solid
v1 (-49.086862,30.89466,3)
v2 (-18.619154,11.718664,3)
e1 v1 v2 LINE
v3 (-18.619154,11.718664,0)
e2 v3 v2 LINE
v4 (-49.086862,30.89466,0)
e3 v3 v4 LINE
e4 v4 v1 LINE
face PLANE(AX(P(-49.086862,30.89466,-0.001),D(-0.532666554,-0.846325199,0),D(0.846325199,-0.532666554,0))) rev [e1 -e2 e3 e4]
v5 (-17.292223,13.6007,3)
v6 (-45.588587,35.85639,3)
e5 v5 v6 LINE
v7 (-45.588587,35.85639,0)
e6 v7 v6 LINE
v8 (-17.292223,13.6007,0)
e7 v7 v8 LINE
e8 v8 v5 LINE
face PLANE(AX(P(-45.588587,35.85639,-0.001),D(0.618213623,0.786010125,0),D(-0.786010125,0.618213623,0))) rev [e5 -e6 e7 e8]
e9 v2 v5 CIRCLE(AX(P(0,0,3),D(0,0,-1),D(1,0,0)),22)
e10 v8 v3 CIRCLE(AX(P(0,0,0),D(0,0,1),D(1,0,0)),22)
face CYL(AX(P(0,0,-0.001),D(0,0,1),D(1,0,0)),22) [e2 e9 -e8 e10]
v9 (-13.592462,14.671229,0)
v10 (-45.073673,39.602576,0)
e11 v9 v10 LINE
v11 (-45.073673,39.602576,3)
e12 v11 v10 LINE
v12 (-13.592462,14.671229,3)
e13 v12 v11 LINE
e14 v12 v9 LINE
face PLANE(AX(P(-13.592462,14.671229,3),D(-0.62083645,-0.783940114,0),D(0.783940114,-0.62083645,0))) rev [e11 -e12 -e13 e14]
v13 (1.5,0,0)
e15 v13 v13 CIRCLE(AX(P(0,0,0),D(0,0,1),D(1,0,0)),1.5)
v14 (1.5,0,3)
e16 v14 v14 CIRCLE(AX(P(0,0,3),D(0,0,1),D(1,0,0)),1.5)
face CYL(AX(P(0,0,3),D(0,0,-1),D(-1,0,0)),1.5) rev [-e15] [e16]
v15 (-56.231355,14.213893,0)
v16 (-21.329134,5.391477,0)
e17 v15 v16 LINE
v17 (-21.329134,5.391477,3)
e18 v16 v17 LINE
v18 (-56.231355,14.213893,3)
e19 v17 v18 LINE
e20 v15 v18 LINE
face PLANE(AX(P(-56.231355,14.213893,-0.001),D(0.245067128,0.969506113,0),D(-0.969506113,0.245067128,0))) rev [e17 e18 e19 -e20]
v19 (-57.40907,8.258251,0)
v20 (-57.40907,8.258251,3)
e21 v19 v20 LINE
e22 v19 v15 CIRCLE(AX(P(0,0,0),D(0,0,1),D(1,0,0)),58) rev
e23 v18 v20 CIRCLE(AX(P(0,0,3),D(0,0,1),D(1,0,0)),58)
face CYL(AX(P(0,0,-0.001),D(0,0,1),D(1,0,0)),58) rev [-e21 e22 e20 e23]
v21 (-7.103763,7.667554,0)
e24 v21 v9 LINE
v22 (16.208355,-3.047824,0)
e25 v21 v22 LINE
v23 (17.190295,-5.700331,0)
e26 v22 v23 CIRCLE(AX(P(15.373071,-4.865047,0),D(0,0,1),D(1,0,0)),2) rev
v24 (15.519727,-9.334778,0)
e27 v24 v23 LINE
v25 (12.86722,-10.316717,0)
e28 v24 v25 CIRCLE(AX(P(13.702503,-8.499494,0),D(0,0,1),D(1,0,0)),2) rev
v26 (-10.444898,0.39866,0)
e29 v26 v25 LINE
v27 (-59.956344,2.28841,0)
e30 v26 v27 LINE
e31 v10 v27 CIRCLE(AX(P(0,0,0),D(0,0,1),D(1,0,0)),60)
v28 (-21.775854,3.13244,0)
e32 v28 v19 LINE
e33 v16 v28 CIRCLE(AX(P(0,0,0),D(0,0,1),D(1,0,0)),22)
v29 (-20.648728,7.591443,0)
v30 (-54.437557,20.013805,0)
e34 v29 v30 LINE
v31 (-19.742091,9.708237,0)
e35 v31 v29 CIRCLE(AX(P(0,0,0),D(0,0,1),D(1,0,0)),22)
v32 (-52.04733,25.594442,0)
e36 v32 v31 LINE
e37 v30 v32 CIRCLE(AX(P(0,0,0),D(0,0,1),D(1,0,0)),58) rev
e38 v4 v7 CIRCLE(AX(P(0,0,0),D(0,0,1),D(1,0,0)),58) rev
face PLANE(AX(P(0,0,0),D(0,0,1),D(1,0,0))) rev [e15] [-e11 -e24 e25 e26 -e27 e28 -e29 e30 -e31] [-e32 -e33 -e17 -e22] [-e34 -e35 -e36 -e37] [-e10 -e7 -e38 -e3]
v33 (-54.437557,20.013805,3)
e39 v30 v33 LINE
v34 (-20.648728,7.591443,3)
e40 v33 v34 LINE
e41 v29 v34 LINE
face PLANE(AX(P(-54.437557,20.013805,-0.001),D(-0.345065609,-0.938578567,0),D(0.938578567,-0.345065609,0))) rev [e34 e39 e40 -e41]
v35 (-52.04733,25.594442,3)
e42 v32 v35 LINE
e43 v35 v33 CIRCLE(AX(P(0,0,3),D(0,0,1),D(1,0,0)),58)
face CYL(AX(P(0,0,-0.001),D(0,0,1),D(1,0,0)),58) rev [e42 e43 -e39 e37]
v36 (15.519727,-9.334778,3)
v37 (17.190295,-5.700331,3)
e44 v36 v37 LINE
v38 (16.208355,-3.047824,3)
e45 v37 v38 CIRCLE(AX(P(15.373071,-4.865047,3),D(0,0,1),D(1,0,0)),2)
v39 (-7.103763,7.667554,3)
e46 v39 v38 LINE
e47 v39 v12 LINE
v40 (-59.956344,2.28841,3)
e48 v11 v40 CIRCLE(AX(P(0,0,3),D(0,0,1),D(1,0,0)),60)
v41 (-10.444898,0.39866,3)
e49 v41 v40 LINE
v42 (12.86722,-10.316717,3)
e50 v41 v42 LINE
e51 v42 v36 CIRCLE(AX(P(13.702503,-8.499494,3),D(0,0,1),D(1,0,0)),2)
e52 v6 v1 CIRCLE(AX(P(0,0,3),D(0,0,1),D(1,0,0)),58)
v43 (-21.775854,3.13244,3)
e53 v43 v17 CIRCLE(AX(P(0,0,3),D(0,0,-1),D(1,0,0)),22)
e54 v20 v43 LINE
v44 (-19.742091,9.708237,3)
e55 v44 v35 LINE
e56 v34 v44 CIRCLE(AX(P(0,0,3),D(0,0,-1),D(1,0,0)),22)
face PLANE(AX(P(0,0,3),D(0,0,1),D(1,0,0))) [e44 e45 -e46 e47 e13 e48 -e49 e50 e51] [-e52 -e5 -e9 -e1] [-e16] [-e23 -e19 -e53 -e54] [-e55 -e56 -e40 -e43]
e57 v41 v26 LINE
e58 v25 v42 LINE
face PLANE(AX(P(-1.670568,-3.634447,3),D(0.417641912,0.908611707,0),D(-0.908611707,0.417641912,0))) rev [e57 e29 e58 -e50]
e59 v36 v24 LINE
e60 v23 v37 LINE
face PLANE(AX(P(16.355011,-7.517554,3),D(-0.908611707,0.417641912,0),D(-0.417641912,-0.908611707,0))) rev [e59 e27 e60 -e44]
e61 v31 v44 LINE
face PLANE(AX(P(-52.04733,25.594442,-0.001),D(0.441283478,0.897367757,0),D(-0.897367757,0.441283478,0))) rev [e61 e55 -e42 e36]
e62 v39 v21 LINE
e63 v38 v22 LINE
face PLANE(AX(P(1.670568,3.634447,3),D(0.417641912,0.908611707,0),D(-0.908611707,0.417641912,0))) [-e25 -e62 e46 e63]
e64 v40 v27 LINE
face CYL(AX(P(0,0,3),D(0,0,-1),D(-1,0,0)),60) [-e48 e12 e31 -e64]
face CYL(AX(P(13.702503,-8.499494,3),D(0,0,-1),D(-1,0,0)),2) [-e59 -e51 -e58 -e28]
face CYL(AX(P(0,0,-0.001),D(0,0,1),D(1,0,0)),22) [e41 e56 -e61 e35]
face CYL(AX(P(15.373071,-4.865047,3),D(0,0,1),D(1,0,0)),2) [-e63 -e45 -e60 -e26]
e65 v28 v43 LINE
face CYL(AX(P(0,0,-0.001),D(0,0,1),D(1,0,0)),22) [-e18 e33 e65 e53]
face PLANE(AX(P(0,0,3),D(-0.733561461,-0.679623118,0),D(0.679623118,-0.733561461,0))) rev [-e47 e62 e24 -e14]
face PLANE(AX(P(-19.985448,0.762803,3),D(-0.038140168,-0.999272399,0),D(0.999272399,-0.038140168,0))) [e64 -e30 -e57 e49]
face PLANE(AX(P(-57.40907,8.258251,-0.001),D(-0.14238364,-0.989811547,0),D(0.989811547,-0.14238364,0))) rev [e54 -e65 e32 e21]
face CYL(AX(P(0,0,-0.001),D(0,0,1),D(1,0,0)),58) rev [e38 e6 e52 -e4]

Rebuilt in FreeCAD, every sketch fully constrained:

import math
import FreeCAD as App
import Part
import Sketcher

V = App.Vector


def edges_at(feature, points):
    """Names of the edges that pass closest to the given points."""
    edges = feature.Shape.Edges
    near = lambda p: min(range(len(edges)), key=lambda i: edges[i].distToShape(Part.Vertex(*p))[0])
    return sorted({f"Edge{near(p) + 1}" for p in points})

doc = App.newDocument("Part")
body = doc.addObject("PartDesign::Body", "Body")

sketch1 = doc.addObject("Sketcher::SketchObject", "Sketch")
body.addObject(sketch1)
sketch1.AttachmentSupport = (doc.XY_Plane, [""])
sketch1.MapMode = "FlatFace"
sketch1.addGeometry([
    Part.LineSegment(V(-59.956344, 2.28841, 0), V(-19.985448, 0.762803, 0)),
    Part.ArcOfCircle(Part.Circle(V(0, 0, 0), V(0, 0, 1), 20), math.radians(132.814199), math.radians(177.814199)),
    Part.LineSegment(V(-13.592462, 14.671229, 0), V(-45.073673, 39.602576, 0)),
    Part.ArcOfCircle(Part.Circle(V(0, 0, 0), V(0, 0, 1), 60), math.radians(138.696853), math.radians(177.814199)),
], False)
sketch1.addConstraint([
    Sketcher.Constraint("Coincident", 0, 2, 1, 2),
    Sketcher.Constraint("Coincident", 1, 1, 2, 1),
    Sketcher.Constraint("Coincident", 2, 2, 3, 1),
    Sketcher.Constraint("Coincident", 3, 2, 0, 1),
    Sketcher.Constraint("Coincident", 1, 3, -1, 1),
    Sketcher.Constraint("Coincident", 3, 3, -1, 1),
    Sketcher.Constraint("Radius", 1, 20.0),
    Sketcher.Constraint("Radius", 3, 60.0),
    Sketcher.Constraint("DistanceY", -1, 1, 1, 1, 14.671229),
    Sketcher.Constraint("DistanceY", -1, 1, 3, 2, 2.28841),
    Sketcher.Constraint("DistanceX", 2, 2, 1, 1, 31.48121),
    Sketcher.Constraint("DistanceX", 0, 2, -1, 1, 19.985448),
])
pad1 = doc.addObject("PartDesign::Pad", "Pad")
body.addObject(pad1)
pad1.Profile = sketch1
pad1.Length = 3

sketch2 = doc.addObject("Sketcher::SketchObject", "Sketch001")
body.addObject(sketch2)
sketch2.AttachmentSupport = (doc.XY_Plane, [""])
sketch2.MapMode = "FlatFace"
sketch2.addGeometry([
    Part.LineSegment(V(-7.103763, 7.667554, 0), V(-13.592462, 14.671229, 0)),
    Part.ArcOfCircle(Part.Circle(V(0, 0, 0), V(0, 0, 1), 20), math.radians(132.814199), math.radians(177.814199)),
    Part.LineSegment(V(-19.985448, 0.762803, 0), V(-10.444898, 0.39866, 0)),
    Part.LineSegment(V(-10.444898, 0.39866, 0), V(14.684443, -11.152001, 0)),
    Part.LineSegment(V(14.684443, -11.152001, 0), V(18.025578, -3.883108, 0)),
    Part.LineSegment(V(18.025578, -3.883108, 0), V(-7.103763, 7.667554, 0)),
    Part.Circle(V(0, 0, 0), V(0, 0, 1), 1.5),
], False)
sketch2.addConstraint([
    Sketcher.Constraint("Coincident", 0, 2, 1, 1),
    Sketcher.Constraint("Coincident", 1, 2, 2, 1),
    Sketcher.Constraint("Coincident", 2, 2, 3, 1),
    Sketcher.Constraint("Coincident", 3, 2, 4, 1),
    Sketcher.Constraint("Coincident", 4, 2, 5, 1),
    Sketcher.Constraint("Coincident", 5, 2, 0, 1),
    Sketcher.Constraint("Coincident", 1, 3, -1, 1),
    Sketcher.Constraint("Coincident", 6, 3, -1, 1),
    Sketcher.Constraint("Perpendicular", 3, 4),
    Sketcher.Constraint("Perpendicular", 4, 5),
    Sketcher.Constraint("Equal", 0, 2),
    Sketcher.Constraint("Equal", 3, 5),
    Sketcher.Constraint("Diameter", 6, 3.0),
    Sketcher.Constraint("Radius", 1, 20.0),
    Sketcher.Constraint("Distance", 4, 8.0),
    Sketcher.Constraint("DistanceY", 3, 2, -1, 1, 11.152001),
    Sketcher.Constraint("DistanceX", 2, 2, -1, 1, 10.444898),
    Sketcher.Constraint("DistanceX", 0, 2, 5, 2, 6.488699),
    Sketcher.Constraint("DistanceY", -1, 1, 0, 2, 14.671229),
    Sketcher.Constraint("DistanceX", 1, 2, 2, 2, 9.54055),
])
pad2 = doc.addObject("PartDesign::Pad", "Pad001")
body.addObject(pad2)
pad2.Profile = sketch2
pad2.Length = 3
doc.recompute()

fillet = doc.addObject("PartDesign::Fillet", "Fillet")
body.addObject(fillet)
fillet.Base = (pad2, edges_at(pad2, [(14.684, -11.152, 1.5), (18.026, -3.883, 1.5)]))
fillet.Radius = 2

sketch3 = doc.addObject("Sketcher::SketchObject", "Sketch002")
body.addObject(sketch3)
sketch3.AttachmentSupport = (doc.XY_Plane, [""])
sketch3.MapMode = "FlatFace"
sketch3.AttachmentOffset = App.Placement(V(0, 0, 3), App.Rotation())
sketch3.addGeometry([
    Part.LineSegment(V(-19.742091, 9.708237, 0), V(-52.04733, 25.594442, 0)),
    Part.ArcOfCircle(Part.Circle(V(0, 0, 0), V(0, 0, 1), 58), math.radians(153.814199), math.radians(159.814199)),
    Part.LineSegment(V(-54.437557, 20.013805, 0), V(-20.648728, 7.591443, 0)),
    Part.ArcOfCircle(Part.Circle(V(0, 0, 0), V(0, 0, 1), 22), math.radians(153.814199), math.radians(159.814199)),
], False)
sketch3.addConstraint([
    Sketcher.Constraint("Coincident", 0, 2, 1, 1),
    Sketcher.Constraint("Coincident", 1, 2, 2, 1),
    Sketcher.Constraint("Coincident", 2, 2, 3, 2),
    Sketcher.Constraint("Coincident", 3, 1, 0, 1),
    Sketcher.Constraint("Coincident", 1, 3, -1, 1),
    Sketcher.Constraint("Coincident", 3, 3, -1, 1),
    Sketcher.Constraint("Radius", 1, 58.0),
    Sketcher.Constraint("Radius", 3, 22.0),
    Sketcher.Constraint("DistanceY", 2, 2, 0, 2, 18.002998),
    Sketcher.Constraint("DistanceX", 0, 2, 2, 2, 31.398601),
    Sketcher.Constraint("DistanceX", 3, 1, -1, 1, 19.742091),
    Sketcher.Constraint("DistanceX", 1, 2, 2, 2, 33.788828),
])
pocket1 = doc.addObject("PartDesign::Pocket", "Pocket")
body.addObject(pocket1)
pocket1.Profile = sketch3
pocket1.Type = "UpToFirst"

sketch4 = doc.addObject("Sketcher::SketchObject", "Sketch003")
body.addObject(sketch4)
sketch4.AttachmentSupport = (doc.XY_Plane, [""])
sketch4.MapMode = "FlatFace"
sketch4.AttachmentOffset = App.Placement(V(0, 0, 3), App.Rotation())
sketch4.addGeometry([
    Part.LineSegment(V(-21.329134, 5.391477, 0), V(-56.231355, 14.213893, 0)),
    Part.ArcOfCircle(Part.Circle(V(0, 0, 0), V(0, 0, 1), 58), math.radians(165.814199), math.radians(171.814199)),
    Part.LineSegment(V(-57.40907, 8.258251, 0), V(-21.775854, 3.13244, 0)),
    Part.ArcOfCircle(Part.Circle(V(0, 0, 0), V(0, 0, 1), 22), math.radians(165.814199), math.radians(171.814199)),
], False)
sketch4.addConstraint([
    Sketcher.Constraint("Coincident", 0, 2, 1, 1),
    Sketcher.Constraint("Coincident", 1, 2, 2, 1),
    Sketcher.Constraint("Coincident", 2, 2, 3, 2),
    Sketcher.Constraint("Coincident", 3, 1, 0, 1),
    Sketcher.Constraint("Coincident", 1, 3, -1, 1),
    Sketcher.Constraint("Coincident", 3, 3, -1, 1),
    Sketcher.Constraint("Radius", 1, 58.0),
    Sketcher.Constraint("Radius", 3, 22.0),
    Sketcher.Constraint("DistanceX", 0, 2, 2, 2, 34.455501),
    Sketcher.Constraint("DistanceX", 1, 2, -1, 1, 57.40907),
    Sketcher.Constraint("DistanceY", -1, 1, 2, 2, 3.13244),
    Sketcher.Constraint("DistanceX", 2, 2, 3, 1, 0.44672),
])
pocket2 = doc.addObject("PartDesign::Pocket", "Pocket001")
body.addObject(pocket2)
pocket2.Profile = sketch4
pocket2.Type = "UpToFirst"

sketch5 = doc.addObject("Sketcher::SketchObject", "Sketch004")
body.addObject(sketch5)
sketch5.AttachmentSupport = (doc.XY_Plane, [""])
sketch5.MapMode = "FlatFace"
sketch5.AttachmentOffset = App.Placement(V(0, 0, 3), App.Rotation())
sketch5.addGeometry([
    Part.LineSegment(V(-49.086862, 30.89466, 0), V(-18.619154, 11.718664, 0)),
    Part.ArcOfCircle(Part.Circle(V(0, 0, 0), V(0, 0, 1), 22), math.radians(141.814199), math.radians(147.814199)),
    Part.LineSegment(V(-17.292223, 13.6007, 0), V(-45.588587, 35.85639, 0)),
    Part.ArcOfCircle(Part.Circle(V(0, 0, 0), V(0, 0, 1), 58), math.radians(141.814199), math.radians(147.814199)),
], False)
sketch5.addConstraint([
    Sketcher.Constraint("Coincident", 0, 2, 1, 2),
    Sketcher.Constraint("Coincident", 1, 1, 2, 1),
    Sketcher.Constraint("Coincident", 2, 2, 3, 1),
    Sketcher.Constraint("Coincident", 3, 2, 0, 1),
    Sketcher.Constraint("Coincident", 1, 3, -1, 1),
    Sketcher.Constraint("Coincident", 3, 3, -1, 1),
    Sketcher.Constraint("Radius", 1, 22.0),
    Sketcher.Constraint("Radius", 3, 58.0),
    Sketcher.Constraint("DistanceY", -1, 1, 1, 1, 13.6007),
    Sketcher.Constraint("DistanceY", -1, 1, 2, 2, 35.85639),
    Sketcher.Constraint("DistanceX", 3, 2, -1, 1, 49.086862),
    Sketcher.Constraint("DistanceX", 0, 2, 1, 1, 1.326932),
])
pocket3 = doc.addObject("PartDesign::Pocket", "Pocket002")
body.addObject(pocket3)
pocket3.Profile = sketch5
pocket3.Type = "UpToFirst"

doc.recompute()
